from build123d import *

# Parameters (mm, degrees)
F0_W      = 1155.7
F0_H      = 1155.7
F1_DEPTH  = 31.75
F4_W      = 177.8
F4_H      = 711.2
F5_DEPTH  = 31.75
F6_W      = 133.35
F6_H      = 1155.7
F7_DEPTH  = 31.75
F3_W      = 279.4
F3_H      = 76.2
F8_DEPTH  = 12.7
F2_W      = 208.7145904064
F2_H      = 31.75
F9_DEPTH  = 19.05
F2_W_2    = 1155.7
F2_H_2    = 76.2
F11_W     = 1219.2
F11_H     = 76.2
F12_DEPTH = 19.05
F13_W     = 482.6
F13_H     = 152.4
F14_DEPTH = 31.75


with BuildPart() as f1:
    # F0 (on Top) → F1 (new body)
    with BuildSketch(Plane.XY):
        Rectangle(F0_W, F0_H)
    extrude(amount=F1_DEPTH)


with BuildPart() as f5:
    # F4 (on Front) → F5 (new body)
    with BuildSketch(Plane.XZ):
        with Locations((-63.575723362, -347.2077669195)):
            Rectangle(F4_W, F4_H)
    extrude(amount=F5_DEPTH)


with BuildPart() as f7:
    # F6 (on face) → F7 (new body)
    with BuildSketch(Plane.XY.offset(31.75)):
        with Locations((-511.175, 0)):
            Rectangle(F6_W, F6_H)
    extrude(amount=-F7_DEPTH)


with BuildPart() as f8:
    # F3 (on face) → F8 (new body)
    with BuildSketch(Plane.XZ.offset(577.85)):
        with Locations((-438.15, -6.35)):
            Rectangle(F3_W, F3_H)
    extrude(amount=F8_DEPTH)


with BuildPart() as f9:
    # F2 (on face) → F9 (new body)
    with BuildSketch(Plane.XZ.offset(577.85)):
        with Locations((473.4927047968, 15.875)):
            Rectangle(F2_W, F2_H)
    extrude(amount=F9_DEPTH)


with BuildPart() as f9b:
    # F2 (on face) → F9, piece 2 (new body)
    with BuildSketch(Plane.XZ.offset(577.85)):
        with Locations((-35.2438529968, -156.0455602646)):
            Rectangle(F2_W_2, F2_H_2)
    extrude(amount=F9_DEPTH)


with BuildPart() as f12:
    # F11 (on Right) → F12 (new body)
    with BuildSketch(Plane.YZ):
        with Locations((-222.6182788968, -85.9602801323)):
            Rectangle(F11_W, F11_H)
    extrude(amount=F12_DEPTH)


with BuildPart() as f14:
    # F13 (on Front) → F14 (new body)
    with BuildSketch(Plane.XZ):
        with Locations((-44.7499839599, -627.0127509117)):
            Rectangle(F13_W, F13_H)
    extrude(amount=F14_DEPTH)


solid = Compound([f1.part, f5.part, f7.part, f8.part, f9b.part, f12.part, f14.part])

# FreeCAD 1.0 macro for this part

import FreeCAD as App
import Part
import Sketcher

V = App.Vector
Q = App.Units.Quantity


def add_polygon(sketch, points):
    """Adds a closed chain of lines whose ends are joined by coincident constraints."""
    first, n = sketch.GeometryCount, len(points)
    for a, b in zip(points, points[1:] + points[:1]):
        sketch.addGeometry(Part.LineSegment(App.Vector(*a, 0), App.Vector(*b, 0)), False)
    for i in range(n):
        sketch.addConstraint(Sketcher.Constraint("Coincident", first + i, 2, first + (i + 1) % n, 1))

doc = App.newDocument("Part")
body = doc.addObject("PartDesign::Body", "Body")

# Sketch on XY plane
sketch1 = body.newObject("Sketcher::SketchObject", "Sketch")
sketch1.AttachmentSupport = (doc.getObject("XY_Plane"), [""])
sketch1.MapMode = "FlatFace"
add_polygon(sketch1, [(-577.85, 577.85), (-577.85, -577.85), (577.85, -577.85), (577.85, 577.85)])  # lines 0-3
sketch1.addConstraint([
    Sketcher.Constraint("Vertical", 0),
    Sketcher.Constraint("Horizontal", 1),
    Sketcher.Constraint("Vertical", 2),
    Sketcher.Constraint("Horizontal", 3),
    Sketcher.Constraint("Symmetric", 0, 2, 2, 2, -1, 1),
    Sketcher.Constraint("Equal", 3, 0),
    Sketcher.Constraint("DistanceX", 1, 1, 1, 2, Q("45.5 in")),
])
pad1 = body.newObject("PartDesign::Pad", "Pad")
pad1.Profile = sketch1
pad1.Length = Q("1.25 in")
body2 = doc.addObject("PartDesign::Body", "Body001")

# Sketch on XZ plane
sketch2 = body2.newObject("Sketcher::SketchObject", "Sketch001")
sketch2.AttachmentSupport = (doc.getObject("XZ_Plane001"), [""])
sketch2.MapMode = "FlatFace"
add_polygon(sketch2, [(-152.475723, 8.392233), (-152.475723, -702.807767), (25.324277, -702.807767), (25.324277, 8.392233)])  # lines 0-3
sketch2.addConstraint([
    Sketcher.Constraint("Vertical", 0),
    Sketcher.Constraint("Horizontal", 1),
    Sketcher.Constraint("Vertical", 2),
    Sketcher.Constraint("Horizontal", 3),
    Sketcher.Constraint("DistanceX", 1, 1, 1, 2, Q("7 in")),
    Sketcher.Constraint("DistanceY", 0, 2, 0, 1, Q("28 in")),
    Sketcher.Constraint("DistanceX", 0, 2, -1, 1, 152.475723),
    Sketcher.Constraint("DistanceY", 0, 2, -1, 1, 702.807767),
])
pad2 = body2.newObject("PartDesign::Pad", "Pad001")
pad2.Profile = sketch2
pad2.Length = Q("1.25 in")
body3 = doc.addObject("PartDesign::Body", "Body002")

# Sketch on XY plane
sketch3 = body3.newObject("Sketcher::SketchObject", "Sketch002")
sketch3.AttachmentSupport = (doc.getObject("XY_Plane002"), [""])
sketch3.MapMode = "FlatFace"
sketch3.AttachmentOffset = App.Placement(V(0, 0, 1.25 * 25.4), App.Rotation())
add_polygon(sketch3, [(-577.85, 577.85), (-577.85, -577.85), (-444.5, -577.85), (-444.5, 577.85)])  # lines 0-3
sketch3.addConstraint([
    Sketcher.Constraint("Vertical", 0),
    Sketcher.Constraint("Horizontal", 1),
    Sketcher.Constraint("Vertical", 2),
    Sketcher.Constraint("Horizontal", 3),
    Sketcher.Constraint("DistanceY", 0, 2, 0, 1, Q("45.5 in")),
    Sketcher.Constraint("DistanceX", 1, 1, 1, 2, Q("5.25 in")),
    Sketcher.Constraint("DistanceX", 1, 2, -1, 1, Q("17.5 in")),
    Sketcher.Constraint("DistanceY", 0, 2, -1, 1, Q("22.75 in")),
])
pad3 = body3.newObject("PartDesign::Pad", "Pad002")
pad3.Profile = sketch3
pad3.Length = Q("1.25 in")
pad3.Reversed = True
body4 = doc.addObject("PartDesign::Body", "Body003")

# Sketch on XZ plane
sketch4 = body4.newObject("Sketcher::SketchObject", "Sketch003")
sketch4.AttachmentSupport = (doc.getObject("XZ_Plane003"), [""])
sketch4.MapMode = "FlatFace"
sketch4.AttachmentOffset = App.Placement(V(0, 0, 22.75 * 25.4), App.Rotation())
add_polygon(sketch4, [(-577.85, 31.75), (-577.85, -44.45), (-298.45, -44.45), (-298.45, 31.75)])  # lines 0-3
sketch4.addConstraint([
    Sketcher.Constraint("Vertical", 0),
    Sketcher.Constraint("Horizontal", 1),
    Sketcher.Constraint("Vertical", 2),
    Sketcher.Constraint("Horizontal", 3),
    Sketcher.Constraint("DistanceX", 1, 1, 1, 2, Q("11 in")),
    Sketcher.Constraint("DistanceY", 0, 2, 0, 1, Q("3 in")),
    Sketcher.Constraint("DistanceX", 0, 2, -1, 1, Q("22.75 in")),
    Sketcher.Constraint("DistanceY", 0, 2, -1, 1, Q("1.75 in")),
])
pad4 = body4.newObject("PartDesign::Pad", "Pad003")
pad4.Profile = sketch4
pad4.Length = Q("0.5 in")
body5 = doc.addObject("PartDesign::Body", "Body004")

# Sketch on XZ plane
sketch5 = body5.newObject("Sketcher::SketchObject", "Sketch004")
sketch5.AttachmentSupport = (doc.getObject("XZ_Plane004"), [""])
sketch5.MapMode = "FlatFace"
sketch5.AttachmentOffset = App.Placement(V(0, 0, 22.75 * 25.4), App.Rotation())
add_polygon(sketch5, [(369.13541, 31.75), (369.13541, 0), (577.85, 0), (577.85, 31.75)])  # lines 0-3
sketch5.addConstraint([
    Sketcher.Constraint("Vertical", 0),
    Sketcher.Constraint("Horizontal", 1),
    Sketcher.Constraint("Vertical", 2),
    Sketcher.Constraint("Horizontal", 3),
    Sketcher.Constraint("PointOnObject", 0, 2, -1),
    Sketcher.Constraint("DistanceY", 0, 2, 0, 1, Q("1.25 in")),
    Sketcher.Constraint("DistanceX", -1, 1, 1, 2, Q("22.75 in")),
    Sketcher.Constraint("DistanceX", 1, 1, 1, 2, 208.71459),
])
pad5 = body5.newObject("PartDesign::Pad", "Pad004")
pad5.Profile = sketch5
pad5.Length = Q("0.75 in")
body6 = doc.addObject("PartDesign::Body", "Body005")

# Sketch on XZ plane
sketch6 = body6.newObject("Sketcher::SketchObject", "Sketch005")
sketch6.AttachmentSupport = (doc.getObject("XZ_Plane005"), [""])
sketch6.MapMode = "FlatFace"
sketch6.AttachmentOffset = App.Placement(V(0, 0, 22.75 * 25.4), App.Rotation())
add_polygon(sketch6, [(-613.093853, -117.94556), (-613.093853, -194.14556), (542.606147, -194.14556), (542.606147, -117.94556)])  # lines 0-3
sketch6.addConstraint([
    Sketcher.Constraint("Vertical", 0),
    Sketcher.Constraint("Horizontal", 1),
    Sketcher.Constraint("Vertical", 2),
    Sketcher.Constraint("Horizontal", 3),
    Sketcher.Constraint("DistanceY", 0, 2, 0, 1, Q("3 in")),
    Sketcher.Constraint("DistanceX", 1, 1, 1, 2, Q("45.5 in")),
    Sketcher.Constraint("DistanceY", 0, 2, -1, 1, 194.14556),
    Sketcher.Constraint("DistanceX", 0, 2, -1, 1, 613.093853),
])
pad6 = body6.newObject("PartDesign::Pad", "Pad005")
pad6.Profile = sketch6
pad6.Length = Q("0.75 in")
body7 = doc.addObject("PartDesign::Body", "Body006")

# Sketch on YZ plane
sketch7 = body7.newObject("Sketcher::SketchObject", "Sketch006")
sketch7.AttachmentSupport = (doc.getObject("YZ_Plane006"), [""])
sketch7.MapMode = "FlatFace"
add_polygon(sketch7, [(-832.218279, -47.86028), (-832.218279, -124.06028), (386.981721, -124.06028), (386.981721, -47.86028)])  # lines 0-3
sketch7.addConstraint([
    Sketcher.Constraint("Vertical", 0),
    Sketcher.Constraint("Horizontal", 1),
    Sketcher.Constraint("Vertical", 2),
    Sketcher.Constraint("Horizontal", 3),
    Sketcher.Constraint("DistanceX", 1, 1, 1, 2, Q("48 in")),
    Sketcher.Constraint("DistanceY", 0, 2, 0, 1, Q("3 in")),
    Sketcher.Constraint("DistanceX", 0, 2, -1, 1, 832.218279),
    Sketcher.Constraint("DistanceY", 0, 2, -1, 1, 124.06028),
])
pad7 = body7.newObject("PartDesign::Pad", "Pad006")
pad7.Profile = sketch7
pad7.Length = Q("0.75 in")
body8 = doc.addObject("PartDesign::Body", "Body007")

# Sketch on XZ plane
sketch8 = body8.newObject("Sketcher::SketchObject", "Sketch007")
sketch8.AttachmentSupport = (doc.getObject("XZ_Plane007"), [""])
sketch8.MapMode = "FlatFace"
add_polygon(sketch8, [(-286.049984, -550.812751), (-286.049984, -703.212751), (196.550016, -703.212751), (196.550016, -550.812751)])  # lines 0-3
sketch8.addConstraint([
    Sketcher.Constraint("Vertical", 0),
    Sketcher.Constraint("Horizontal", 1),
    Sketcher.Constraint("Vertical", 2),
    Sketcher.Constraint("Horizontal", 3),
    Sketcher.Constraint("DistanceX", 1, 1, 1, 2, Q("19 in")),
    Sketcher.Constraint("DistanceY", 0, 2, 0, 1, Q("6 in")),
    Sketcher.Constraint("DistanceY", 0, 2, -1, 1, 703.212751),
    Sketcher.Constraint("DistanceX", 0, 2, -1, 1, 286.049984),
])
pad8 = body8.newObject("PartDesign::Pad", "Pad007")
pad8.Profile = sketch8
pad8.Length = Q("1.25 in")
body5.Visibility = False

doc.recompute()
